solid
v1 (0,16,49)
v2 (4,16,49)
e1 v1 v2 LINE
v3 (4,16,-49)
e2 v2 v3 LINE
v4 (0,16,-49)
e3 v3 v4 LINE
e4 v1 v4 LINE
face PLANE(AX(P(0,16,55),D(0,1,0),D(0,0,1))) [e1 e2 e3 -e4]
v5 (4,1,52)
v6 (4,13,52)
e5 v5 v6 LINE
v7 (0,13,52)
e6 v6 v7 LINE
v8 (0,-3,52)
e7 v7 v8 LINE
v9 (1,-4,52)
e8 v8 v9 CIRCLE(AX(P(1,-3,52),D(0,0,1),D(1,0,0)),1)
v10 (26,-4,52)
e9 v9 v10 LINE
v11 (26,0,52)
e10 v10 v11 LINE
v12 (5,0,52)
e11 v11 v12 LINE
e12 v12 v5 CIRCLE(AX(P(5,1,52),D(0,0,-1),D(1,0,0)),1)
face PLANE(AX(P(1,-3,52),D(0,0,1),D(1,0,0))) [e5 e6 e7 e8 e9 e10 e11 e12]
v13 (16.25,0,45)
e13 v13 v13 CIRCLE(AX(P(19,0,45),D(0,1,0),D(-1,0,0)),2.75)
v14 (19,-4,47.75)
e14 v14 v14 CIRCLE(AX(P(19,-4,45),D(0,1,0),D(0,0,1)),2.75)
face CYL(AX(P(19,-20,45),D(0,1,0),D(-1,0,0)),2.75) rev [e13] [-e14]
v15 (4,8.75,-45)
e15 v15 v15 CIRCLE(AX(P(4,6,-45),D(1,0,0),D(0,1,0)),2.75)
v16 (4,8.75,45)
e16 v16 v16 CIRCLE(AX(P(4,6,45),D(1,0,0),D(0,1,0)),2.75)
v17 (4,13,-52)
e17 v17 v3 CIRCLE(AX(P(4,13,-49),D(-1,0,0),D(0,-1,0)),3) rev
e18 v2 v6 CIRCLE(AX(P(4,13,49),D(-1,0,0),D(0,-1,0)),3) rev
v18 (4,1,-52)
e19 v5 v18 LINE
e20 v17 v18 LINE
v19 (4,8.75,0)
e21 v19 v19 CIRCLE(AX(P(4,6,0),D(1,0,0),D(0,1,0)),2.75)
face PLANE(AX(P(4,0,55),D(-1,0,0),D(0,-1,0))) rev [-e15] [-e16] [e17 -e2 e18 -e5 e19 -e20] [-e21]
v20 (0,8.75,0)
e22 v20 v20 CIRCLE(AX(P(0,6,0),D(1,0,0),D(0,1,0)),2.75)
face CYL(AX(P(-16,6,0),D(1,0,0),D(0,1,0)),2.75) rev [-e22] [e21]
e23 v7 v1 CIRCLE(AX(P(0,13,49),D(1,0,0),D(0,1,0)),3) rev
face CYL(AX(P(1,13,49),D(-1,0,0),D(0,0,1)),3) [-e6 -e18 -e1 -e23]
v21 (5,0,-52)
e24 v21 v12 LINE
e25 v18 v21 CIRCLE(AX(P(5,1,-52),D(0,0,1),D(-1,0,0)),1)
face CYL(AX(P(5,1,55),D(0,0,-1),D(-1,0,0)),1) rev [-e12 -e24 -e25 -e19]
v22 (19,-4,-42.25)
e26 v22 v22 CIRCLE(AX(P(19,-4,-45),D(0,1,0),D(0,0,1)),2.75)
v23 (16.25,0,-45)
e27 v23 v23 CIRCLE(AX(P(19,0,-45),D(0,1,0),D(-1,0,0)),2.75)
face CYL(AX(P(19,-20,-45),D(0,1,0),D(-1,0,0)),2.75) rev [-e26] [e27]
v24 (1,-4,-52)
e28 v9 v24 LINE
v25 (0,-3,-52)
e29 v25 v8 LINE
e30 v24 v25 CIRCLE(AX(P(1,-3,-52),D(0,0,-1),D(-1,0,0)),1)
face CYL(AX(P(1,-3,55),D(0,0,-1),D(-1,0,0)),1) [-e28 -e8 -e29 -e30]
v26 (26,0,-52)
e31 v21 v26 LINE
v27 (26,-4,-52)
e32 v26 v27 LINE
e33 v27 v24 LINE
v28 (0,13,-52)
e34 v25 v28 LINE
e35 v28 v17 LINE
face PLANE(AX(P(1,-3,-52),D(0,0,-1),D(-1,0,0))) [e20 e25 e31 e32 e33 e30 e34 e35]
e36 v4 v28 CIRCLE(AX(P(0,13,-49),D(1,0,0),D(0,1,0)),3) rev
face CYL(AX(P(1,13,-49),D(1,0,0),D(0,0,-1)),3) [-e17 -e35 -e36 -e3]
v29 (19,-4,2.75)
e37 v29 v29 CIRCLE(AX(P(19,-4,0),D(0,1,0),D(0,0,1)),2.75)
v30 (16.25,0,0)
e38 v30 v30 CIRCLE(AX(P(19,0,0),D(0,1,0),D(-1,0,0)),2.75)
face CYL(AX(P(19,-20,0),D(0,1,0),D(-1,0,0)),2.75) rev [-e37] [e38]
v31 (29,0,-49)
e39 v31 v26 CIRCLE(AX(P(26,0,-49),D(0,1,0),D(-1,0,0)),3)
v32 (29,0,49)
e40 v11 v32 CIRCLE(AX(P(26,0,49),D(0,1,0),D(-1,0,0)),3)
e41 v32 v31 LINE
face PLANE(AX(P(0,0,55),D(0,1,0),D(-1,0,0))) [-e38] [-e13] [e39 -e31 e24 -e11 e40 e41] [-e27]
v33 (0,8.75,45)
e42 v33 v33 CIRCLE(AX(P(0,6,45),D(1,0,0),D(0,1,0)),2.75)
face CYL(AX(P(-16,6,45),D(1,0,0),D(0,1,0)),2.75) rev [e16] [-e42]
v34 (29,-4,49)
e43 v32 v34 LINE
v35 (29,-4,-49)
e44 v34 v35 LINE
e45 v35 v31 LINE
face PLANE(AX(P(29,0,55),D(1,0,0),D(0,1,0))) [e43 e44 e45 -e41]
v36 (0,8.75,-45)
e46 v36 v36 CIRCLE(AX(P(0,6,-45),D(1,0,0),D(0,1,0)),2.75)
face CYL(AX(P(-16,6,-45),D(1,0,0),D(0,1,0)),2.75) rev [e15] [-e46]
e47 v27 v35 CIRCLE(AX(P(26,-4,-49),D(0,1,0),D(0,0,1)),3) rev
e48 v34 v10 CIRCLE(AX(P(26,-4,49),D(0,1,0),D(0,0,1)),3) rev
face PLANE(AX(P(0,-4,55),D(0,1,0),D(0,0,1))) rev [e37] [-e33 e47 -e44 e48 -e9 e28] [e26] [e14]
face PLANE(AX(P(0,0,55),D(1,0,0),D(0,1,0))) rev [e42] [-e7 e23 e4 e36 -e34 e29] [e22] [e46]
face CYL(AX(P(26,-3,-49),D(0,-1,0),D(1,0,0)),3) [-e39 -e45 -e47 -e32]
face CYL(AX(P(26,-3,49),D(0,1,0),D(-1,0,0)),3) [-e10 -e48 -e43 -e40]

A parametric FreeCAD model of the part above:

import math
import FreeCAD as App
import Part
import Sketcher


def edges_at(feature, points):
    """Names of the edges that pass closest to the given points."""
    edges = feature.Shape.Edges
    near = lambda p: min(range(len(edges)), key=lambda i: edges[i].distToShape(Part.Vertex(*p))[0])
    return sorted({f"Edge{near(p) + 1}" for p in points})

doc = App.newDocument("Part")
body = doc.addObject("PartDesign::Body", "Body")

# Sketch on XY plane
sketch1 = body.newObject("Sketcher::SketchObject", "Sketch")
sketch1.AttachmentSupport = (doc.getObject("XY_Plane"), [""])
sketch1.MapMode = "FlatFace"
sketch1.addGeometry(Part.LineSegment(App.Vector(0, -4, 0), App.Vector(29, -4, 0)), False)
sketch1.addGeometry(Part.LineSegment(App.Vector(29, -4, 0), App.Vector(29, 0, 0)), False)
sketch1.addGeometry(Part.LineSegment(App.Vector(29, 0, 0), App.Vector(4, 0, 0)), False)
sketch1.addGeometry(Part.LineSegment(App.Vector(4, 0, 0), App.Vector(4, 16, 0)), False)
sketch1.addGeometry(Part.LineSegment(App.Vector(4, 16, 0), App.Vector(0, 16, 0)), False)
sketch1.addGeometry(Part.LineSegment(App.Vector(0, 16, 0), App.Vector(0, -4, 0)), False)
sketch1.addConstraint(Sketcher.Constraint("Coincident", 0, 2, 1, 1))
sketch1.addConstraint(Sketcher.Constraint("Coincident", 1, 2, 2, 1))
sketch1.addConstraint(Sketcher.Constraint("Coincident", 2, 2, 3, 1))
sketch1.addConstraint(Sketcher.Constraint("Coincident", 3, 2, 4, 1))
sketch1.addConstraint(Sketcher.Constraint("Coincident", 4, 2, 5, 1))
sketch1.addConstraint(Sketcher.Constraint("Coincident", 5, 2, 0, 1))
sketch1.addConstraint(Sketcher.Constraint("Horizontal", 0))
sketch1.addConstraint(Sketcher.Constraint("Vertical", 1))
sketch1.addConstraint(Sketcher.Constraint("Horizontal", 2))
sketch1.addConstraint(Sketcher.Constraint("Vertical", 3))
sketch1.addConstraint(Sketcher.Constraint("Horizontal", 4))
sketch1.addConstraint(Sketcher.Constraint("Vertical", 5))
sketch1.addConstraint(Sketcher.Constraint("PointOnObject", 1, 2, -1))
sketch1.addConstraint(Sketcher.Constraint("PointOnObject", 4, 2, -2))
sketch1.addConstraint(Sketcher.Constraint("Equal", 4, 1))
sketch1.addConstraint(Sketcher.Constraint("DistanceX", 0, 1, 0, 2, 29.0))
sketch1.addConstraint(Sketcher.Constraint("DistanceX", 2, 2, 2, 1, 25.0))
sketch1.addConstraint(Sketcher.Constraint("DistanceY", 3, 1, 3, 2, 16.0))
pad1 = body.newObject("PartDesign::Pad", "Pad")
pad1.Profile = sketch1
pad1.Length = 110
pad1.Midplane = True

# Sketch on YZ plane
sketch2 = body.newObject("Sketcher::SketchObject", "Sketch001")
sketch2.AttachmentSupport = (doc.getObject("YZ_Plane"), [""])
sketch2.MapMode = "FlatFace"
sketch2.AttachmentOffset = App.Placement(App.Vector(0, 0, 4), App.Rotation())
sketch2.addGeometry(Part.Circle(App.Vector(6, 0, 0), App.Vector(0, 0, 1), 2.8), False)
sketch2.addGeometry(Part.Circle(App.Vector(6, 45, 0), App.Vector(0, 0, 1), 2.8), False)
sketch2.addGeometry(Part.Circle(App.Vector(6, -45, 0), App.Vector(0, 0, 1), 2.8), False)
sketch2.addConstraint(Sketcher.Constraint("Equal", 0, 1))
sketch2.addConstraint(Sketcher.Constraint("Equal", 1, 2))
sketch2.addConstraint(Sketcher.Constraint("Symmetric", 1, 3, 2, 3, -1))
sketch2.addConstraint(Sketcher.Constraint("PointOnObject", 0, 3, -1))
sketch2.addConstraint(Sketcher.Constraint("Vertical", 0, 3, 1, 3))
sketch2.addConstraint(Sketcher.Constraint("Diameter", 0, 5.5))
sketch2.addConstraint(Sketcher.Constraint("DistanceX", -1, 1, 0, 3, 6.0))
sketch2.addConstraint(Sketcher.Constraint("DistanceY", -1, 1, 1, 3, 45.0))
pocket1 = body.newObject("PartDesign::Pocket", "Pocket")
pocket1.Profile = sketch2
pocket1.Length = 20

# Sketch on XZ plane
sketch3 = body.newObject("Sketcher::SketchObject", "Sketch002")
sketch3.AttachmentSupport = (doc.getObject("XZ_Plane"), [""])
sketch3.MapMode = "FlatFace"
sketch3.addGeometry(Part.Circle(App.Vector(19, 0, 0), App.Vector(0, 0, 1), 2.8), False)
sketch3.addGeometry(Part.Circle(App.Vector(19, 45, 0), App.Vector(0, 0, 1), 2.8), False)
sketch3.addGeometry(Part.Circle(App.Vector(19, -45, 0), App.Vector(0, 0, 1), 2.8), False)
sketch3.addConstraint(Sketcher.Constraint("Equal", 0, 1))
sketch3.addConstraint(Sketcher.Constraint("Equal", 1, 2))
sketch3.addConstraint(Sketcher.Constraint("Symmetric", 1, 3, 2, 3, -1))
sketch3.addConstraint(Sketcher.Constraint("PointOnObject", 0, 3, -1))
sketch3.addConstraint(Sketcher.Constraint("Vertical", 0, 3, 1, 3))
sketch3.addConstraint(Sketcher.Constraint("Diameter", 0, 5.5))
sketch3.addConstraint(Sketcher.Constraint("DistanceX", -1, 1, 0, 3, 19.0))
sketch3.addConstraint(Sketcher.Constraint("DistanceY", -1, 1, 1, 3, 45.0))
pocket2 = body.newObject("PartDesign::Pocket", "Pocket001")
pocket2.Profile = sketch3
pocket2.Length = 20
pocket2.Reversed = True
doc.recompute()

fillet = body.newObject("PartDesign::Fillet", "Fillet")
fillet.Base = (pocket2, edges_at(pocket2, [(0, -4, 0), (4, 0, 0)]))
fillet.Radius = 1

# Sketch on XY plane
sketch4 = body.newObject("Sketcher::SketchObject", "Sketch003")
sketch4.AttachmentSupport = (doc.getObject("XY_Plane"), [""])
sketch4.MapMode = "FlatFace"
sketch4.AttachmentOffset = App.Placement(App.Vector(0, 0, 52), App.Rotation())
sketch4.addGeometry(Part.LineSegment(App.Vector(0, 16, 0), App.Vector(0, -3, 0)), False)
sketch4.addGeometry(Part.ArcOfCircle(Part.Circle(App.Vector(1, -3, 0), App.Vector(0, 0, 1), 1), math.radians(-180), math.radians(-90)), False)
sketch4.addGeometry(Part.LineSegment(App.Vector(1, -4, 0), App.Vector(29, -4, 0)), False)
sketch4.addGeometry(Part.LineSegment(App.Vector(29, -4, 0), App.Vector(29, 0, 0)), False)
sketch4.addGeometry(Part.LineSegment(App.Vector(29, 0, 0), App.Vector(5, 0, 0)), False)
sketch4.addGeometry(Part.ArcOfCircle(Part.Circle(App.Vector(5, 1, 0), App.Vector(0, 0, 1), 1), math.radians(-180), math.radians(-90)), False)
sketch4.addGeometry(Part.LineSegment(App.Vector(4, 1, 0), App.Vector(4, 16, 0)), False)
sketch4.addGeometry(Part.LineSegment(App.Vector(4, 16, 0), App.Vector(0, 16, 0)), False)
sketch4.addConstraint(Sketcher.Constraint("Tangent", 0, 2, 1, 1))
sketch4.addConstraint(Sketcher.Constraint("Tangent", 1, 2, 2, 1))
sketch4.addConstraint(Sketcher.Constraint("Coincident", 2, 2, 3, 1))
sketch4.addConstraint(Sketcher.Constraint("Coincident", 3, 2, 4, 1))
sketch4.addConstraint(Sketcher.Constraint("Tangent", 4, 2, 5, 2))
sketch4.addConstraint(Sketcher.Constraint("Tangent", 5, 1, 6, 1))
sketch4.addConstraint(Sketcher.Constraint("Coincident", 6, 2, 7, 1))
sketch4.addConstraint(Sketcher.Constraint("Coincident", 7, 2, 0, 1))
sketch4.addConstraint(Sketcher.Constraint("Vertical", 0))
sketch4.addConstraint(Sketcher.Constraint("Horizontal", 2))
sketch4.addConstraint(Sketcher.Constraint("Vertical", 3))
sketch4.addConstraint(Sketcher.Constraint("Horizontal", 4))
sketch4.addConstraint(Sketcher.Constraint("Vertical", 6))
sketch4.addConstraint(Sketcher.Constraint("Horizontal", 7))
sketch4.addConstraint(Sketcher.Constraint("Equal", 1, 5))
sketch4.addConstraint(Sketcher.Constraint("PointOnObject", 0, 2, -2))
sketch4.addConstraint(Sketcher.Constraint("PointOnObject", 3, 2, -1))
sketch4.addConstraint(Sketcher.Constraint("Equal", 7, 3))
sketch4.addConstraint(Sketcher.Constraint("Radius", 1, 1.0))
sketch4.addConstraint(Sketcher.Constraint("DistanceX", 2, 1, 2, 2, 28.0))
sketch4.addConstraint(Sketcher.Constraint("DistanceX", 4, 2, 4, 1, 24.0))
sketch4.addConstraint(Sketcher.Constraint("DistanceY", 0, 2, 0, 1, 19.0))
pocket3 = body.newObject("PartDesign::Pocket", "Pocket002")
pocket3.Profile = sketch4
pocket3.Length = 3
pocket3.Reversed = True

# Sketch on XY plane
sketch5 = body.newObject("Sketcher::SketchObject", "Sketch004")
sketch5.AttachmentSupport = (doc.getObject("XY_Plane"), [""])
sketch5.MapMode = "FlatFace"
sketch5.AttachmentOffset = App.Placement(App.Vector(0, 0, -55), App.Rotation())
sketch5.addGeometry(Part.LineSegment(App.Vector(29, -4, 0), App.Vector(1, -4, 0)), False)
sketch5.addGeometry(Part.ArcOfCircle(Part.Circle(App.Vector(1, -3, 0), App.Vector(0, 0, 1), 1), math.radians(-180), math.radians(-90)), False)
sketch5.addGeometry(Part.LineSegment(App.Vector(0, -3, 0), App.Vector(0, 16, 0)), False)
sketch5.addGeometry(Part.LineSegment(App.Vector(0, 16, 0), App.Vector(4, 16, 0)), False)
sketch5.addGeometry(Part.LineSegment(App.Vector(4, 16, 0), App.Vector(4, 1, 0)), False)
sketch5.addGeometry(Part.ArcOfCircle(Part.Circle(App.Vector(5, 1, 0), App.Vector(0, 0, 1), 1), math.radians(-180), math.radians(-90)), False)
sketch5.addGeometry(Part.LineSegment(App.Vector(5, 0, 0), App.Vector(29, 0, 0)), False)
sketch5.addGeometry(Part.LineSegment(App.Vector(29, 0, 0), App.Vector(29, -4, 0)), False)
sketch5.addConstraint(Sketcher.Constraint("Tangent", 0, 2, 1, 2))
sketch5.addConstraint(Sketcher.Constraint("Tangent", 1, 1, 2, 1))
sketch5.addConstraint(Sketcher.Constraint("Coincident", 2, 2, 3, 1))
sketch5.addConstraint(Sketcher.Constraint("Coincident", 3, 2, 4, 1))
sketch5.addConstraint(Sketcher.Constraint("Tangent", 4, 2, 5, 1))
sketch5.addConstraint(Sketcher.Constraint("Tangent", 5, 2, 6, 1))
sketch5.addConstraint(Sketcher.Constraint("Coincident", 6, 2, 7, 1))
sketch5.addConstraint(Sketcher.Constraint("Coincident", 7, 2, 0, 1))
sketch5.addConstraint(Sketcher.Constraint("Horizontal", 0))
sketch5.addConstraint(Sketcher.Constraint("Vertical", 2))
sketch5.addConstraint(Sketcher.Constraint("Horizontal", 3))
sketch5.addConstraint(Sketcher.Constraint("Vertical", 4))
sketch5.addConstraint(Sketcher.Constraint("Horizontal", 6))
sketch5.addConstraint(Sketcher.Constraint("Vertical", 7))
sketch5.addConstraint(Sketcher.Constraint("Equal", 1, 5))
sketch5.addConstraint(Sketcher.Constraint("PointOnObject", 1, 1, -2))
sketch5.addConstraint(Sketcher.Constraint("PointOnObject", 5, 2, -1))
sketch5.addConstraint(Sketcher.Constraint("Equal", 3, 7))
sketch5.addConstraint(Sketcher.Constraint("Radius", 1, 1.0))
sketch5.addConstraint(Sketcher.Constraint("DistanceX", 0, 2, 0, 1, 28.0))
sketch5.addConstraint(Sketcher.Constraint("DistanceX", 3, 1, 3, 2, 4.0))
sketch5.addConstraint(Sketcher.Constraint("DistanceY", 2, 1, 2, 2, 19.0))
pocket4 = body.newObject("PartDesign::Pocket", "Pocket003")
pocket4.Profile = sketch5
pocket4.Length = 3
pocket4.Reversed = True
doc.recompute()

fillet2 = body.newObject("PartDesign::Fillet", "Fillet001")
fillet2.Base = (pocket4, edges_at(pocket4, [
    (29, -2, -52),
    (2, 16, -52),
    (2, 16, 52),
    (29, -2, 52),
]))
fillet2.Radius = 3

doc.recompute()
